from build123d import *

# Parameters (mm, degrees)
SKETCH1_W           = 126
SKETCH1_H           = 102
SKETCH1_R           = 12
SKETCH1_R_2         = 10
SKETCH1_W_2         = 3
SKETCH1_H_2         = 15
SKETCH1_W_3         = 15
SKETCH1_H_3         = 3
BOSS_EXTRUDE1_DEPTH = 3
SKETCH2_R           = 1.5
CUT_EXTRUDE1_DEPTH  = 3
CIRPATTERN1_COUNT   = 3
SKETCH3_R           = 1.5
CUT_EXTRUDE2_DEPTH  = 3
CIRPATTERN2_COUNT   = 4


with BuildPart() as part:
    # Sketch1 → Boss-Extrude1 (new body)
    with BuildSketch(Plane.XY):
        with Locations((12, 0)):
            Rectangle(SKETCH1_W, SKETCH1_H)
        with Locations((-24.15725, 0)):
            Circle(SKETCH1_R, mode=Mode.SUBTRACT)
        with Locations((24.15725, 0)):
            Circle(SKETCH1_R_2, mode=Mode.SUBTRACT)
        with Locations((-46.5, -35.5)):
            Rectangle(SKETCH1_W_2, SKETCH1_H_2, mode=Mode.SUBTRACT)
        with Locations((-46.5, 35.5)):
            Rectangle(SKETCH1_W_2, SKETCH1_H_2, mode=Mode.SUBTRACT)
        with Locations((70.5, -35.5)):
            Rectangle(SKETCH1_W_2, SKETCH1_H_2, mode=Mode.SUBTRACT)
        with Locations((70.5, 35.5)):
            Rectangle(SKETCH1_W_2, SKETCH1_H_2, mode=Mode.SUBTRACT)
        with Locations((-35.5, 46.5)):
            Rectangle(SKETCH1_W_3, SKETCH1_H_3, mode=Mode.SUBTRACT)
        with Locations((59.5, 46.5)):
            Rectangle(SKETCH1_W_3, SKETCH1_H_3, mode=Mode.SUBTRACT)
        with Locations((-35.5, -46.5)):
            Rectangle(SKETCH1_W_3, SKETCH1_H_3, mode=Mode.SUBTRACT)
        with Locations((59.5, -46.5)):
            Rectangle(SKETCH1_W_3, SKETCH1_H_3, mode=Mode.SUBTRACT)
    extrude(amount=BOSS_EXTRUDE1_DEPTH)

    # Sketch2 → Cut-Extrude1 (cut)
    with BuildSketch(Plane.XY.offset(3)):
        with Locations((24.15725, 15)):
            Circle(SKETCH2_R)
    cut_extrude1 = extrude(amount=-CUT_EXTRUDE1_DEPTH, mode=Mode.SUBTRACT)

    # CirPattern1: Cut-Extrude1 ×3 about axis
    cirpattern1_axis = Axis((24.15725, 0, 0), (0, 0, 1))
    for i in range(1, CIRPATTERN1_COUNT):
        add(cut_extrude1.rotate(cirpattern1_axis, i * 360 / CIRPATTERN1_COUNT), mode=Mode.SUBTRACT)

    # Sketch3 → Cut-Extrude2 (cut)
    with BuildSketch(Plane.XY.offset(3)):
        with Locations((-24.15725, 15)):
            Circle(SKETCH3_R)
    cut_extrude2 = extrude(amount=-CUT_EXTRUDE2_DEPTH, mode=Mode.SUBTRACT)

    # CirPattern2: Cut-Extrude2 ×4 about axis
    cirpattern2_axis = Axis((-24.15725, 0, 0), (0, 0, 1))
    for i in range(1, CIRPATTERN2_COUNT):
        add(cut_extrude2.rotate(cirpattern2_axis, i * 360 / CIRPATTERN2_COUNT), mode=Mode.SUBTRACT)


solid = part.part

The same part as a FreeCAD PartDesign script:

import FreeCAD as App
import Part
import Sketcher

V = App.Vector


def add_polygon(sketch, points):
    """Adds a closed chain of lines whose ends are joined by coincident constraints."""
    first, n = sketch.GeometryCount, len(points)
    for a, b in zip(points, points[1:] + points[:1]):
        sketch.addGeometry(Part.LineSegment(App.Vector(*a, 0), App.Vector(*b, 0)), False)
    for i in range(n):
        sketch.addConstraint(Sketcher.Constraint("Coincident", first + i, 2, first + (i + 1) % n, 1))

doc = App.newDocument("Part")
params = doc.addObject("Spreadsheet::Sheet", "Params")
for row, (alias, value) in enumerate([
    ("sketch1_diameter", "24 mm"),
    ("sketch1_diameter2", "20 mm"),
    ("sketch1_width", "126 mm"),
    ("sketch1_width2", "15 mm"),
    ("sketch1_width3", "3 mm"),
    ("pad1_length", "3 mm"),
    ("sketch2_diameter", "3 mm"),
    ("pocket1_length", "3 mm"),
    ("sketch3_diameter", "3 mm"),
    ("pocket2_length", "3 mm"),
], start=1):
    params.set(f"A{row}", alias)
    params.set(f"B{row}", "=" + value)
    params.setAlias(f"B{row}", alias)

body = doc.addObject("PartDesign::Body", "Body")

# Sketch on XY plane
sketch1 = doc.addObject("Sketcher::SketchObject", "Sketch")
body.addObject(sketch1)
sketch1.AttachmentSupport = (doc.XY_Plane, [""])
sketch1.MapMode = "FlatFace"
add_polygon(sketch1, [(-51, 51), (-51, -51), (75, -51), (75, 51)])  # lines 0-3
add_polygon(sketch1, [(-28, -48), (-43, -48), (-43, -45), (-28, -45)])  # lines 4-7
add_polygon(sketch1, [(-45, -43), (-48, -43), (-48, -28), (-45, -28)])  # lines 8-11
add_polygon(sketch1, [(67, -48), (52, -48), (52, -45), (67, -45)])  # lines 12-15
add_polygon(sketch1, [(72, -43), (69, -43), (69, -28), (72, -28)])  # lines 16-19
sketch1.addGeometry(Part.Circle(V(-24.2, 0, 0), V(0, 0, 1), 12), False)  # 20
add_polygon(sketch1, [(-45, 28), (-48, 28), (-48, 43), (-45, 43)])  # lines 21-24
add_polygon(sketch1, [(-28, 45), (-43, 45), (-43, 48), (-28, 48)])  # lines 25-28
sketch1.addGeometry(Part.Circle(V(24.2, 0, 0), V(0, 0, 1), 10), False)  # 29
add_polygon(sketch1, [(72, 28), (69, 28), (69, 43), (72, 43)])  # lines 30-33
add_polygon(sketch1, [(67, 45), (52, 45), (52, 48), (67, 48)])  # lines 34-37
sketch1.addConstraint(Sketcher.Constraint("Vertical", 0))
sketch1.addConstraint(Sketcher.Constraint("Horizontal", 1))
sketch1.addConstraint(Sketcher.Constraint("Vertical", 2))
sketch1.addConstraint(Sketcher.Constraint("Horizontal", 3))
sketch1.addConstraint(Sketcher.Constraint("Horizontal", 4))
sketch1.addConstraint(Sketcher.Constraint("Vertical", 5))
sketch1.addConstraint(Sketcher.Constraint("Horizontal", 6))
sketch1.addConstraint(Sketcher.Constraint("Vertical", 7))
sketch1.addConstraint(Sketcher.Constraint("Horizontal", 8))
sketch1.addConstraint(Sketcher.Constraint("Vertical", 9))
sketch1.addConstraint(Sketcher.Constraint("Horizontal", 10))
sketch1.addConstraint(Sketcher.Constraint("Vertical", 11))
sketch1.addConstraint(Sketcher.Constraint("Horizontal", 12))
sketch1.addConstraint(Sketcher.Constraint("Vertical", 13))
sketch1.addConstraint(Sketcher.Constraint("Horizontal", 14))
sketch1.addConstraint(Sketcher.Constraint("Vertical", 15))
sketch1.addConstraint(Sketcher.Constraint("Horizontal", 16))
sketch1.addConstraint(Sketcher.Constraint("Vertical", 17))
sketch1.addConstraint(Sketcher.Constraint("Horizontal", 18))
sketch1.addConstraint(Sketcher.Constraint("Vertical", 19))
sketch1.addConstraint(Sketcher.Constraint("Horizontal", 21))
sketch1.addConstraint(Sketcher.Constraint("Vertical", 22))
sketch1.addConstraint(Sketcher.Constraint("Horizontal", 23))
sketch1.addConstraint(Sketcher.Constraint("Vertical", 24))
sketch1.addConstraint(Sketcher.Constraint("Horizontal", 25))
sketch1.addConstraint(Sketcher.Constraint("Vertical", 26))
sketch1.addConstraint(Sketcher.Constraint("Horizontal", 27))
sketch1.addConstraint(Sketcher.Constraint("Vertical", 28))
sketch1.addConstraint(Sketcher.Constraint("Horizontal", 30))
sketch1.addConstraint(Sketcher.Constraint("Vertical", 31))
sketch1.addConstraint(Sketcher.Constraint("Horizontal", 32))
sketch1.addConstraint(Sketcher.Constraint("Vertical", 33))
sketch1.addConstraint(Sketcher.Constraint("Horizontal", 34))
sketch1.addConstraint(Sketcher.Constraint("Vertical", 35))
sketch1.addConstraint(Sketcher.Constraint("Horizontal", 36))
sketch1.addConstraint(Sketcher.Constraint("Vertical", 37))
sketch1.addConstraint(Sketcher.Constraint("Symmetric", 20, 3, 29, 3, -1, 1))
sketch1.addConstraint(Sketcher.Constraint("Symmetric", 9, 2, 21, 2, -1))
sketch1.addConstraint(Sketcher.Constraint("Symmetric", 11, 2, 23, 2, -1))
sketch1.addConstraint(Sketcher.Constraint("Symmetric", 5, 2, 25, 2, -1))
sketch1.addConstraint(Sketcher.Constraint("Symmetric", 7, 2, 27, 2, -1))
sketch1.addConstraint(Sketcher.Constraint("Symmetric", 17, 2, 30, 2, -1))
sketch1.addConstraint(Sketcher.Constraint("Symmetric", 19, 2, 32, 2, -1))
sketch1.addConstraint(Sketcher.Constraint("Symmetric", 13, 2, 34, 2, -1))
sketch1.addConstraint(Sketcher.Constraint("Symmetric", 15, 2, 36, 2, -1))
sketch1.addConstraint(Sketcher.Constraint("PointOnObject", 20, 3, -1))
sketch1.addConstraint(Sketcher.Constraint("Horizontal", 7, 2, 12, 2))
sketch1.addConstraint(Sketcher.Constraint("Horizontal", 6, 2, 13, 2))
sketch1.addConstraint(Sketcher.Constraint("Horizontal", 11, 2, 16, 2))
sketch1.addConstraint(Sketcher.Constraint("Horizontal", 10, 2, 17, 2))
sketch1.addConstraint(Sketcher.Constraint("Equal", 6, 12))
sketch1.addConstraint(Sketcher.Constraint("Equal", 10, 16))
sketch1.addConstraint(Sketcher.Constraint("Equal", 32, 5))
sketch1.addConstraint(Sketcher.Constraint("Equal", 36, 9))
sketch1.addConstraint(Sketcher.Constraint("Diameter", 20, 24.0))
sketch1.addConstraint(Sketcher.Constraint("Diameter", 29, 20.0))
sketch1.addConstraint(Sketcher.Constraint("DistanceX", 1, 1, 1, 2, 126.0))
sketch1.addConstraint(Sketcher.Constraint("DistanceX", 4, 2, 4, 1, 15.0))
sketch1.addConstraint(Sketcher.Constraint("DistanceX", 8, 2, 8, 1, 3.0))
sketch1.addConstraint(Sketcher.Constraint("DistanceY", 0, 2, 0, 1, 102.0))
sketch1.addConstraint(Sketcher.Constraint("DistanceX", 0, 2, -1, 1, 51.0))
sketch1.addConstraint(Sketcher.Constraint("DistanceY", 0, 2, -1, 1, 51.0))
sketch1.addConstraint(Sketcher.Constraint("DistanceX", 4, 2, -1, 1, 43.0))
sketch1.addConstraint(Sketcher.Constraint("DistanceY", 4, 2, -1, 1, 48.0))
sketch1.addConstraint(Sketcher.Constraint("DistanceX", 8, 2, -1, 1, 48.0))
sketch1.addConstraint(Sketcher.Constraint("DistanceY", 8, 2, -1, 1, 43.0))
sketch1.addConstraint(Sketcher.Constraint("DistanceX", -1, 1, 12, 2, 52.0))
sketch1.addConstraint(Sketcher.Constraint("DistanceX", -1, 1, 16, 2, 69.0))
sketch1.addConstraint(Sketcher.Constraint("DistanceX", 20, 3, 29, 3, 48.3145))
sketch1.setExpression("Constraints[90]", "Params.sketch1_diameter")
sketch1.setExpression("Constraints[91]", "Params.sketch1_diameter2")
sketch1.setExpression("Constraints[92]", "Params.sketch1_width")
sketch1.setExpression("Constraints[93]", "Params.sketch1_width2")
sketch1.setExpression("Constraints[94]", "Params.sketch1_width3")
pad1 = doc.addObject("PartDesign::Pad", "Pad")
body.addObject(pad1)
pad1.Profile = sketch1
pad1.setExpression("Length", "Params.pad1_length")

# Sketch on XY plane
sketch2 = doc.addObject("Sketcher::SketchObject", "Sketch001")
body.addObject(sketch2)
sketch2.AttachmentSupport = (doc.XY_Plane, [""])
sketch2.MapMode = "FlatFace"
sketch2.AttachmentOffset = App.Placement(V(0, 0, 3), App.Rotation())
sketch2.addGeometry(Part.Circle(V(24.2, 15, 0), V(0, 0, 1), 1.5), False)
sketch2.addConstraint(Sketcher.Constraint("Diameter", 0, 3.0))
sketch2.addConstraint(Sketcher.Constraint("DistanceY", -1, 1, 0, 3, 15.0))
sketch2.addConstraint(Sketcher.Constraint("DistanceX", -1, 1, 0, 3, 24.15725))
sketch2.setExpression("Constraints[0]", "Params.sketch2_diameter")
pocket1 = doc.addObject("PartDesign::Pocket", "Pocket")
body.addObject(pocket1)
pocket1.Profile = sketch2
pocket1.setExpression("Length", "Params.pocket1_length")
doc.recompute()

datumline = doc.addObject("PartDesign::Line", "DatumLine")
body.addObject(datumline)
datumline.Placement = App.Placement(V(24.15725, 0, 0), App.Rotation(V(0, 0, 1), V(0, 0, 1)))
polarpattern = doc.addObject("PartDesign::PolarPattern", "PolarPattern")
body.addObject(polarpattern)
polarpattern.Originals = [pocket1]
polarpattern.Axis = (datumline, [""])
polarpattern.Angle = 360
polarpattern.Occurrences = 3
body.Tip = polarpattern

# Sketch on XY plane
sketch3 = doc.addObject("Sketcher::SketchObject", "Sketch002")
body.addObject(sketch3)
sketch3.AttachmentSupport = (doc.XY_Plane, [""])
sketch3.MapMode = "FlatFace"
sketch3.AttachmentOffset = App.Placement(V(0, 0, 3), App.Rotation())
sketch3.addGeometry(Part.Circle(V(-24.2, 15, 0), V(0, 0, 1), 1.5), False)
sketch3.addConstraint(Sketcher.Constraint("Diameter", 0, 3.0))
sketch3.addConstraint(Sketcher.Constraint("DistanceY", -1, 1, 0, 3, 15.0))
sketch3.addConstraint(Sketcher.Constraint("DistanceX", 0, 3, -1, 1, 24.15725))
sketch3.setExpression("Constraints[0]", "Params.sketch3_diameter")
pocket2 = doc.addObject("PartDesign::Pocket", "Pocket001")
body.addObject(pocket2)
pocket2.Profile = sketch3
pocket2.setExpression("Length", "Params.pocket2_length")
doc.recompute()

datumline2 = doc.addObject("PartDesign::Line", "DatumLine001")
body.addObject(datumline2)
datumline2.Placement = App.Placement(V(-24.15725, 0, 0), App.Rotation(V(0, 0, 1), V(0, 0, 1)))
polarpattern2 = doc.addObject("PartDesign::PolarPattern", "PolarPattern001")
body.addObject(polarpattern2)
polarpattern2.Originals = [pocket2]
polarpattern2.Axis = (datumline2, [""])
polarpattern2.Angle = 360
polarpattern2.Occurrences = 4
body.Tip = polarpattern2

doc.recompute()
